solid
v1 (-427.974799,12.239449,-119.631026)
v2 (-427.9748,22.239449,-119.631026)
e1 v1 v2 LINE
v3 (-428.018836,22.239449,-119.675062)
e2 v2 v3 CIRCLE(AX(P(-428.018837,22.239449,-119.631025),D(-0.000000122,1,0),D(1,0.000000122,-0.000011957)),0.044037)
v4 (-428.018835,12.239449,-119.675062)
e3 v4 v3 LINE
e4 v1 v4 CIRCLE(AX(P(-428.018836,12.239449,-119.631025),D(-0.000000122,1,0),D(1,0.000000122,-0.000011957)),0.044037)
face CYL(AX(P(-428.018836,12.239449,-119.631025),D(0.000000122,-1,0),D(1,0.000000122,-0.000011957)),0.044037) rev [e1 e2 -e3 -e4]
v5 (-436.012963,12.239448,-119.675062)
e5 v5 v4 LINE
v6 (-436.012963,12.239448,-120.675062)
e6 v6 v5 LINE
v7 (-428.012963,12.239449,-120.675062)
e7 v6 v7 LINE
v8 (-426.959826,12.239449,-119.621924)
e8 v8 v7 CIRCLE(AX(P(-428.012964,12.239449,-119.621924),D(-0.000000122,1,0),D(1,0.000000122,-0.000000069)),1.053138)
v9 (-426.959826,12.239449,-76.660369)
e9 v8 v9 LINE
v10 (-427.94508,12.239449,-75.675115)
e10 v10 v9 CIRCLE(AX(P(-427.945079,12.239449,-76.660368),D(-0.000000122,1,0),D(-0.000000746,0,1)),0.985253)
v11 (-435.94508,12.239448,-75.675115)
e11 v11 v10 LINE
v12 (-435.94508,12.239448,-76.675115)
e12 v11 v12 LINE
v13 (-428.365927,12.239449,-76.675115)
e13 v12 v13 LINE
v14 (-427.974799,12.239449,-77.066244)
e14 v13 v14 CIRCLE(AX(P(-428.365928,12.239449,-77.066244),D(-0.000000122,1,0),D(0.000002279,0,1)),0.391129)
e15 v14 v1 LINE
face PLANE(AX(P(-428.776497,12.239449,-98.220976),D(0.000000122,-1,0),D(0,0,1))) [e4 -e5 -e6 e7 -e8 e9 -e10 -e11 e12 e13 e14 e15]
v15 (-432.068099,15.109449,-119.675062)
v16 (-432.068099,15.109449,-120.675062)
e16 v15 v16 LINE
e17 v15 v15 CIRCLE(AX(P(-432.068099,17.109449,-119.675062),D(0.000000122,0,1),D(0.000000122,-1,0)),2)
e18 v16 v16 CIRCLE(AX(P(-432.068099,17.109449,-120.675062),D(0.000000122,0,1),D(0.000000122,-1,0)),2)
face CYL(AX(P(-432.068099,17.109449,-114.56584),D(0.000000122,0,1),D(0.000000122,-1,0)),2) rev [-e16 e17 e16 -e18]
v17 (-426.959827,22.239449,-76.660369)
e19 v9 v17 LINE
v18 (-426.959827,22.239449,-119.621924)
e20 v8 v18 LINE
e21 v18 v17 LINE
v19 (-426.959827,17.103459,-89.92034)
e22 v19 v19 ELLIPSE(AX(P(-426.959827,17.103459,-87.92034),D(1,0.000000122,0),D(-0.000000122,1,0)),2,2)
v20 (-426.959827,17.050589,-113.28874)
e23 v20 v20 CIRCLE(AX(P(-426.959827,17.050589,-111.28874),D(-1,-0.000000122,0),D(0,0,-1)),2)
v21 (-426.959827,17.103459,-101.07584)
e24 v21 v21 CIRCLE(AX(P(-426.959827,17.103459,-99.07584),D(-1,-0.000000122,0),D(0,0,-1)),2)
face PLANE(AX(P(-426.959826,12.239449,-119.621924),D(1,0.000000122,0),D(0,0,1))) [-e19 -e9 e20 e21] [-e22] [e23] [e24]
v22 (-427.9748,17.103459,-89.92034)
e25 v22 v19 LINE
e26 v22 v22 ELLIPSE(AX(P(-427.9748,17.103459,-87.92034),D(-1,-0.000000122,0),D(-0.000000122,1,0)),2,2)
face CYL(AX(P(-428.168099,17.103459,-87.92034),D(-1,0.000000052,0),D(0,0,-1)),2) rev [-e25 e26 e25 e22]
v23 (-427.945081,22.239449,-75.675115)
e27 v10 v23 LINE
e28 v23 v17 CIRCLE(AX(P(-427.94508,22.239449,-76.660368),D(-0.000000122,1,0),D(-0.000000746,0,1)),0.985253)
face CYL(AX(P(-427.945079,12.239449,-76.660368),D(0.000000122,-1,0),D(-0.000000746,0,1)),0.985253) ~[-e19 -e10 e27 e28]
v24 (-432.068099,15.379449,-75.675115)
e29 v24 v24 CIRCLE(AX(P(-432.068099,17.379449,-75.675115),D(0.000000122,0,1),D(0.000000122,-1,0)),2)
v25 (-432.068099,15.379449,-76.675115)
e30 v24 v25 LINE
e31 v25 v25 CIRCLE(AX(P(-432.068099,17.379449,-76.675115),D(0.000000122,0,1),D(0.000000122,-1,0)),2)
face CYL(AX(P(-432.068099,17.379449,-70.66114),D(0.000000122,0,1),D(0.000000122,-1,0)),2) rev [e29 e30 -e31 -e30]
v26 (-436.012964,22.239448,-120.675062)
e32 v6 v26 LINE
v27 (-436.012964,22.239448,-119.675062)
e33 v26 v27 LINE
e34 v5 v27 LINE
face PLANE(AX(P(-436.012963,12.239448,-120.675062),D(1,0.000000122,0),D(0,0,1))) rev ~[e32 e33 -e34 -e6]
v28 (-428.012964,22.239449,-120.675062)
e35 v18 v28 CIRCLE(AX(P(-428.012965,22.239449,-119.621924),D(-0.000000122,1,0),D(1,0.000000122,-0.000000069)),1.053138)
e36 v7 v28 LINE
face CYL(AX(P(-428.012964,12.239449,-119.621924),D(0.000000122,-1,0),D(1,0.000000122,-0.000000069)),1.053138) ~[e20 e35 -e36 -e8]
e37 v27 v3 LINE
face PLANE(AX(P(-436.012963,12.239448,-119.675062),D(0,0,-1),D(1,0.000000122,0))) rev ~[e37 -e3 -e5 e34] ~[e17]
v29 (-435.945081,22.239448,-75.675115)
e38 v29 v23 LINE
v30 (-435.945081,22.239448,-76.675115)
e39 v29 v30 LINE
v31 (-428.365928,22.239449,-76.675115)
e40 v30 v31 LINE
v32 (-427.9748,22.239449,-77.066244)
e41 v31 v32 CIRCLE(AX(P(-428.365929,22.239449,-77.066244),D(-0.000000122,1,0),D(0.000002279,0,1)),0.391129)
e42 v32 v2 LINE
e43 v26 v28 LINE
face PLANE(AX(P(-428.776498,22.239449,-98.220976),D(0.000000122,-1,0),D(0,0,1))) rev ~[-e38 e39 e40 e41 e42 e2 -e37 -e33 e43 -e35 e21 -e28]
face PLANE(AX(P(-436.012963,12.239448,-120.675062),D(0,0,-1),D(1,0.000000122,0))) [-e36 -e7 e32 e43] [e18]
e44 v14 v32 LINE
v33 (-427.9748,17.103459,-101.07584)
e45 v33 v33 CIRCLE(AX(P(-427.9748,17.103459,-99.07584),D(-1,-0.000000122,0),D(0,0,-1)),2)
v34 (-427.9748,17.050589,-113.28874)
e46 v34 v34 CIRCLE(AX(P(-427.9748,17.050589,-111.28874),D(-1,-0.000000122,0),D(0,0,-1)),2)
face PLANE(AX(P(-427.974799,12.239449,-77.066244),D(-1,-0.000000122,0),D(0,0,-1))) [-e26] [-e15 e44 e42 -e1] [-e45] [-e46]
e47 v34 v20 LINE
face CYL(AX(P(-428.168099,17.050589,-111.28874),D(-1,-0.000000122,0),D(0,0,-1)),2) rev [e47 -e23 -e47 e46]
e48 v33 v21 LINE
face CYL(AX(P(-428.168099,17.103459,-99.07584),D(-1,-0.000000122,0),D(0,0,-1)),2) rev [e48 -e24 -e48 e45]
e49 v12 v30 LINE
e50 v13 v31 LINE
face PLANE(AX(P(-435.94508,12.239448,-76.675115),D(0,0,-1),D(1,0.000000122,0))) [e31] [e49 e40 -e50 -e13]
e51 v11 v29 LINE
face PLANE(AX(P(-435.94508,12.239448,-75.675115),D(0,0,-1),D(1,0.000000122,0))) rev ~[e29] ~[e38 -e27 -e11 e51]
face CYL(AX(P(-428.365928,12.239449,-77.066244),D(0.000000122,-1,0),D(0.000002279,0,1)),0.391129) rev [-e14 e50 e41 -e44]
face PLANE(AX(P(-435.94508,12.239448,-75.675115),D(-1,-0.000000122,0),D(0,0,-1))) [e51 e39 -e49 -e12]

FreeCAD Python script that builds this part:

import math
import FreeCAD as App
import Part
import Sketcher

V = App.Vector
Q = App.Units.Quantity

doc = App.newDocument("Part")
body = doc.addObject("PartDesign::Body", "Body")

sketch1 = doc.addObject("Sketcher::SketchObject", "Sketch")
body.addObject(sketch1)
sketch1.AttachmentSupport = (doc.XY_Plane, [""])
sketch1.MapMode = "FlatFace"
sketch1.addGeometry(Part.Circle(V(0, 0, 0), V(0, 0, 1), 2), False)
sketch1.addConstraint([
    Sketcher.Constraint("Coincident", 0, 3, -1, 1),
    Sketcher.Constraint("Diameter", 0, Q("4 mm")),
])
pad1 = doc.addObject("PartDesign::Pad", "Pad")
body.addObject(pad1)
pad1.Profile = sketch1
pad1.Length = 10
body2 = doc.addObject("PartDesign::Body", "Body001")
doc.recompute()

body.Placement = App.Placement(V(0, 0, 0), App.Rotation(V(0, 1, 0), 90))
boolean = doc.addObject("PartDesign::Boolean", "Boolean")
body2.addObject(boolean)
boolean.Type = "Fuse"
boolean.addObjects([body])
body3 = doc.addObject("PartDesign::Body", "Body002")
doc.recompute()

body2.Placement = App.Placement(V(15.49, 3.9, 4.87), App.Rotation(V(0, 0, 1), 0.000007))
boolean2 = doc.addObject("PartDesign::Boolean", "Boolean001")
body3.addObject(boolean2)
boolean2.Type = "Fuse"
boolean2.addObjects([body2])
body4 = doc.addObject("PartDesign::Body", "Body003")

sketch2 = doc.addObject("Sketcher::SketchObject", "Sketch001")
body4.addObject(sketch2)
sketch2.AttachmentSupport = (doc.getObject("XY_Plane003"), [""])
sketch2.MapMode = "FlatFace"
sketch2.addGeometry(Part.Circle(V(0, 0, 0), V(0, 0, 1), 2), False)
sketch2.addConstraint([
    Sketcher.Constraint("Coincident", 0, 3, -1, 1),
    Sketcher.Constraint("Diameter", 0, Q("4 mm")),
])
pad2 = doc.addObject("PartDesign::Pad", "Pad001")
body4.addObject(pad2)
pad2.Profile = sketch2
pad2.Length = 10
body5 = doc.addObject("PartDesign::Body", "Body004")
doc.recompute()

body4.Placement = App.Placement(V(0, 0, 0), App.Rotation(V(0, 1, 0), 90))
boolean3 = doc.addObject("PartDesign::Boolean", "Boolean002")
body5.addObject(boolean3)
boolean3.Type = "Fuse"
boolean3.addObjects([body4])
body6 = doc.addObject("PartDesign::Body", "Body005")
doc.recompute()

body5.Placement = App.Placement(V(-28.4147, 3.9, 5.14), App.Rotation(V(0, 0, 1), 0.000007))
boolean4 = doc.addObject("PartDesign::Boolean", "Boolean003")
body6.addObject(boolean4)
boolean4.Type = "Fuse"
boolean4.addObjects([body5])
body7 = doc.addObject("PartDesign::Body", "Body006")

sketch3 = doc.addObject("Sketcher::SketchObject", "Sketch002")
body7.addObject(sketch3)
sketch3.AttachmentSupport = (doc.getObject("XY_Plane006"), [""])
sketch3.MapMode = "FlatFace"
sketch3.addGeometry(Part.Circle(V(0, 0, 0), V(0, 0, 1), 2), False)
sketch3.addConstraint([
    Sketcher.Constraint("Coincident", 0, 3, -1, 1),
    Sketcher.Constraint("Diameter", 0, Q("4 mm")),
])
pad3 = doc.addObject("PartDesign::Pad", "Pad002")
body7.addObject(pad3)
pad3.Profile = sketch3
pad3.Length = 2
body8 = doc.addObject("PartDesign::Body", "Body007")
doc.recompute()

body7.Placement = App.Placement(V(0, 0, 0), App.Rotation(V(1, 0, 0), 271.492946))
boolean5 = doc.addObject("PartDesign::Boolean", "Boolean004")
body8.addObject(boolean5)
boolean5.Type = "Fuse"
boolean5.addObjects([body7])
body9 = doc.addObject("PartDesign::Body", "Body008")
doc.recompute()

body8.Placement = App.Placement(V(0, 0, 0), App.Rotation(V(0, 1, 0), 272.98249))
boolean6 = doc.addObject("PartDesign::Boolean", "Boolean005")
body9.addObject(boolean6)
boolean6.Type = "Fuse"
boolean6.addObjects([body8])
body10 = doc.addObject("PartDesign::Body", "Body009")
doc.recompute()

body9.Placement = App.Placement(V(-26, 5.29, 4.9), App.Rotation(V(0, 0, 1), 267.755985))
boolean7 = doc.addObject("PartDesign::Boolean", "Boolean006")
body10.addObject(boolean7)
boolean7.Type = "Fuse"
boolean7.addObjects([body9])
body11 = doc.addObject("PartDesign::Body", "Body010")

sketch4 = doc.addObject("Sketcher::SketchObject", "Sketch003")
body11.addObject(sketch4)
sketch4.AttachmentSupport = (doc.getObject("XY_Plane010"), [""])
sketch4.MapMode = "FlatFace"
sketch4.addGeometry(Part.Circle(V(0, 0, 0), V(0, 0, 1), 2), False)
sketch4.addConstraint([
    Sketcher.Constraint("Coincident", 0, 3, -1, 1),
    Sketcher.Constraint("Diameter", 0, Q("4 mm")),
])
pad4 = doc.addObject("PartDesign::Pad", "Pad003")
body11.addObject(pad4)
pad4.Profile = sketch4
pad4.Length = 2
body12 = doc.addObject("PartDesign::Body", "Body011")
doc.recompute()

body11.Placement = App.Placement(V(-11.1555, 0, 4.86401), App.Rotation(V(1, 0, 0), 90.00001))
boolean8 = doc.addObject("PartDesign::Boolean", "Boolean007")
body12.addObject(boolean8)
boolean8.Type = "Fuse"
boolean8.addObjects([body11])
body13 = doc.addObject("PartDesign::Body", "Body012")

sketch5 = doc.addObject("Sketcher::SketchObject", "Sketch004")
body13.addObject(sketch5)
sketch5.AttachmentSupport = (doc.getObject("XY_Plane012"), [""])
sketch5.MapMode = "FlatFace"
sketch5.addGeometry(Part.Circle(V(0, 0, 0), V(0, 0, 1), 2), False)
sketch5.addConstraint([
    Sketcher.Constraint("Coincident", 0, 3, -1, 1),
    Sketcher.Constraint("Diameter", 0, Q("4 mm")),
])
pad5 = doc.addObject("PartDesign::Pad", "Pad004")
body13.addObject(pad5)
pad5.Profile = sketch5
pad5.Length = 2
body14 = doc.addObject("PartDesign::Body", "Body013")
doc.recompute()

body13.Placement = App.Placement(V(0, 0, 0), App.Rotation(V(1, 0, 0), 90))
boolean9 = doc.addObject("PartDesign::Boolean", "Boolean008")
body14.addObject(boolean9)
boolean9.Type = "Fuse"
boolean9.addObjects([body13])
body15 = doc.addObject("PartDesign::Body", "Body014")
doc.recompute()

body14.Placement = App.Placement(V(0, 0, 4.86401), App.Rotation(V(0, 0, 1), 0))
boolean10 = doc.addObject("PartDesign::Boolean", "Boolean009")
body15.addObject(boolean10)
boolean10.Type = "Fuse"
boolean10.addObjects([body14])
body16 = doc.addObject("PartDesign::Body", "Body015")

sketch6 = doc.addObject("Sketcher::SketchObject", "Sketch005")
body16.addObject(sketch6)
sketch6.AttachmentSupport = (doc.getObject("XY_Plane015"), [""])
sketch6.MapMode = "FlatFace"
sketch6.addGeometry(Part.Circle(V(0, 0, 0), V(0, 0, 1), 2), False)
sketch6.addConstraint([
    Sketcher.Constraint("Coincident", 0, 3, -1, 1),
    Sketcher.Constraint("Diameter", 0, Q("4 mm")),
])
pad6 = doc.addObject("PartDesign::Pad", "Pad005")
body16.addObject(pad6)
pad6.Profile = sketch6
pad6.Length = 2
body17 = doc.addObject("PartDesign::Body", "Body016")
doc.recompute()

body16.Placement = App.Placement(V(0, 0, 0), App.Rotation(V(1, 0, 0), 90))
boolean11 = doc.addObject("PartDesign::Boolean", "Boolean010")
body17.addObject(boolean11)
boolean11.Type = "Fuse"
boolean11.addObjects([body16])
body18 = doc.addObject("PartDesign::Body", "Body017")
doc.recompute()

body17.Placement = App.Placement(V(12.2129, 0, 4.81114), App.Rotation(V(0, 0, 1), 0))
boolean12 = doc.addObject("PartDesign::Boolean", "Boolean011")
body18.addObject(boolean12)
boolean12.Type = "Fuse"
boolean12.addObjects([body17])
body19 = doc.addObject("PartDesign::Body", "Body018")

sketch7 = doc.addObject("Sketcher::SketchObject", "Sketch006")
body19.addObject(sketch7)
sketch7.AttachmentSupport = (doc.getObject("XY_Plane018"), [""])
sketch7.MapMode = "FlatFace"
sketch7.addGeometry(Part.Circle(V(0, 0, 0), V(0, 0, 1), 2), False)
sketch7.addConstraint([
    Sketcher.Constraint("Coincident", 0, 3, -1, 1),
    Sketcher.Constraint("Diameter", 0, Q("4 mm")),
])
pad7 = doc.addObject("PartDesign::Pad", "Pad006")
body19.addObject(pad7)
pad7.Profile = sketch7
pad7.Length = 2
body20 = doc.addObject("PartDesign::Body", "Body019")
doc.recompute()

body19.Placement = App.Placement(V(0, 0, 0), App.Rotation(V(1, 0, 0), 271.492946))
boolean13 = doc.addObject("PartDesign::Boolean", "Boolean012")
body20.addObject(boolean13)
boolean13.Type = "Fuse"
boolean13.addObjects([body19])
body21 = doc.addObject("PartDesign::Body", "Body020")
doc.recompute()

body20.Placement = App.Placement(V(0, 0, 0), App.Rotation(V(0, 1, 0), 272.98249))
boolean14 = doc.addObject("PartDesign::Boolean", "Boolean013")
body21.addObject(boolean14)
boolean14.Type = "Fuse"
boolean14.addObjects([body20])
body22 = doc.addObject("PartDesign::Body", "Body021")
doc.recompute()

body21.Placement = App.Placement(V(25, 5.38, 4.9), App.Rotation(V(0, 0, 1), 267.755985))
boolean15 = doc.addObject("PartDesign::Boolean", "Boolean014")
body22.addObject(boolean15)
boolean15.Type = "Fuse"
boolean15.addObjects([body21])
body23 = doc.addObject("PartDesign::Body", "Body022")

sketch8 = doc.addObject("Sketcher::SketchObject", "Sketch007")
body23.addObject(sketch8)
sketch8.AttachmentSupport = (doc.getObject("XY_Plane022"), [""])
sketch8.MapMode = "FlatFace"
sketch8.addGeometry([
    Part.LineSegment(V(-22.415471, -1.208272, 0), V(20.546084, -1.208272, 0)),
    Part.ArcOfCircle(Part.Circle(V(20.546084, -0.155134, 0), V(0, 0, 1), 1.053138), math.radians(-89.999996), math.radians(-0.000058)),
    Part.LineSegment(V(21.599222, -0.155135, 0), V(21.599222, 7.844865, 0)),
    Part.LineSegment(V(21.599222, 7.844865, 0), V(20.599222, 7.844865, 0)),
    Part.LineSegment(V(20.599222, 7.844865, 0), V(20.599222, -0.149263, 0)),
    Part.ArcOfCircle(Part.Circle(V(20.555185, -0.149262, 0), V(0, 0, 1), 0.044037), math.radians(-89.999314), math.radians(-0.000686)),
    Part.LineSegment(V(20.555186, -0.193299, 0), V(-22.009596, -0.193299, 0)),
    Part.ArcOfCircle(Part.Circle(V(-22.009596, 0.19783, 0), V(0, 0, 1), 0.391129), math.radians(-179.999869), math.radians(-89.999984)),
    Part.LineSegment(V(-22.400725, 0.197829, 0), V(-22.400725, 7.776982, 0)),
    Part.LineSegment(V(-22.400725, 7.776982, 0), V(-23.400725, 7.776982, 0)),
    Part.LineSegment(V(-23.400725, 7.776982, 0), V(-23.400725, -0.223018, 0)),
    Part.ArcOfCircle(Part.Circle(V(-22.415472, -0.223019, 0), V(0, 0, 1), 0.985253), math.radians(179.999957), math.radians(270.000043)),
], False)
sketch8.addConstraint([
    Sketcher.Constraint("Tangent", 0, 2, 1, 1),
    Sketcher.Constraint("Tangent", 1, 2, 2, 1),
    Sketcher.Constraint("Coincident", 2, 2, 3, 1),
    Sketcher.Constraint("Coincident", 3, 2, 4, 1),
    Sketcher.Constraint("Coincident", 4, 2, 5, 2),
    Sketcher.Constraint("Coincident", 5, 1, 6, 1),
    Sketcher.Constraint("Tangent", 6, 2, 7, 2),
    Sketcher.Constraint("Coincident", 7, 1, 8, 1),
    Sketcher.Constraint("Coincident", 8, 2, 9, 1),
    Sketcher.Constraint("Coincident", 9, 2, 10, 1),
    Sketcher.Constraint("Tangent", 10, 2, 11, 1),
    Sketcher.Constraint("Tangent", 11, 2, 0, 1),
    Sketcher.Constraint("Horizontal", 0),
    Sketcher.Constraint("Vertical", 2),
    Sketcher.Constraint("Horizontal", 3),
    Sketcher.Constraint("Vertical", 4),
    Sketcher.Constraint("Horizontal", 6),
    Sketcher.Constraint("Vertical", 8),
    Sketcher.Constraint("Horizontal", 9),
    Sketcher.Constraint("Vertical", 10),
    Sketcher.Constraint("Horizontal", 5, 3, 4, 2),
    Sketcher.Constraint("Equal", 3, 9),
    Sketcher.Constraint("Equal", 2, 10),
    Sketcher.Constraint("DistanceX", 3, 2, 3, 1, Q("1 mm")),
    Sketcher.Constraint("DistanceY", 2, 1, 2, 2, Q("8 mm")),
    Sketcher.Constraint("Radius", 1, Q("1.053138 mm")),
    Sketcher.Constraint("Radius", 7, Q("0.391129 mm")),
    Sketcher.Constraint("Radius", 5, Q("0.044037 mm")),
    Sketcher.Constraint("Radius", 11, Q("0.985253 mm")),
    Sketcher.Constraint("DistanceX", 6, 2, 6, 1, Q("42.564782 mm")),
    Sketcher.Constraint("DistanceY", 4, 2, 4, 1, Q("7.994128 mm")),
    Sketcher.Constraint("DistanceY", 5, 1, -1, 1, Q("0.193299 mm")),
    Sketcher.Constraint("DistanceX", 0, 2, 5, 1, Q("0.009102 mm")),
    Sketcher.Constraint("DistanceY", 11, 2, 7, 1, Q("1.406101 mm")),
    Sketcher.Constraint("DistanceX", 11, 3, -1, 1, Q("22.415472 mm")),
])
pad8 = doc.addObject("PartDesign::Pad", "Pad007")
body23.addObject(pad8)
pad8.Profile = sketch8
pad8.Length = 10
doc.recompute()

boolean16 = doc.addObject("PartDesign::Boolean", "Boolean015")
body23.addObject(boolean16)
boolean16.Type = "Cut"
boolean16.addObjects([body22])
doc.recompute()

boolean17 = doc.addObject("PartDesign::Boolean", "Boolean016")
body23.addObject(boolean17)
boolean17.Type = "Cut"
boolean17.addObjects([body18])
doc.recompute()

boolean18 = doc.addObject("PartDesign::Boolean", "Boolean017")
body23.addObject(boolean18)
boolean18.Type = "Cut"
boolean18.addObjects([body15])
doc.recompute()

boolean19 = doc.addObject("PartDesign::Boolean", "Boolean018")
body23.addObject(boolean19)
boolean19.Type = "Cut"
boolean19.addObjects([body12])
doc.recompute()

boolean20 = doc.addObject("PartDesign::Boolean", "Boolean019")
body23.addObject(boolean20)
boolean20.Type = "Cut"
boolean20.addObjects([body10])
doc.recompute()

boolean21 = doc.addObject("PartDesign::Boolean", "Boolean020")
body23.addObject(boolean21)
boolean21.Type = "Cut"
boolean21.addObjects([body6])
doc.recompute()

boolean22 = doc.addObject("PartDesign::Boolean", "Boolean021")
body23.addObject(boolean22)
boolean22.Type = "Cut"
boolean22.addObjects([body3])
body24 = doc.addObject("PartDesign::Body", "Body023")
doc.recompute()

body23.Placement = App.Placement(V(0, 0, 0), App.Rotation(V(0, 1, 0), 90))
boolean23 = doc.addObject("PartDesign::Boolean", "Boolean022")
body24.addObject(boolean23)
boolean23.Type = "Fuse"
boolean23.addObjects([body23])
body25 = doc.addObject("PartDesign::Body", "Body024")
doc.recompute()

body24.Placement = App.Placement(V(-428.168098, 12.239449, -99.07584), App.Rotation(V(0, 0, 1), 90.000007))
boolean24 = doc.addObject("PartDesign::Boolean", "Boolean023")
body25.addObject(boolean24)
boolean24.Type = "Fuse"
boolean24.addObjects([body24])

doc.recompute()
